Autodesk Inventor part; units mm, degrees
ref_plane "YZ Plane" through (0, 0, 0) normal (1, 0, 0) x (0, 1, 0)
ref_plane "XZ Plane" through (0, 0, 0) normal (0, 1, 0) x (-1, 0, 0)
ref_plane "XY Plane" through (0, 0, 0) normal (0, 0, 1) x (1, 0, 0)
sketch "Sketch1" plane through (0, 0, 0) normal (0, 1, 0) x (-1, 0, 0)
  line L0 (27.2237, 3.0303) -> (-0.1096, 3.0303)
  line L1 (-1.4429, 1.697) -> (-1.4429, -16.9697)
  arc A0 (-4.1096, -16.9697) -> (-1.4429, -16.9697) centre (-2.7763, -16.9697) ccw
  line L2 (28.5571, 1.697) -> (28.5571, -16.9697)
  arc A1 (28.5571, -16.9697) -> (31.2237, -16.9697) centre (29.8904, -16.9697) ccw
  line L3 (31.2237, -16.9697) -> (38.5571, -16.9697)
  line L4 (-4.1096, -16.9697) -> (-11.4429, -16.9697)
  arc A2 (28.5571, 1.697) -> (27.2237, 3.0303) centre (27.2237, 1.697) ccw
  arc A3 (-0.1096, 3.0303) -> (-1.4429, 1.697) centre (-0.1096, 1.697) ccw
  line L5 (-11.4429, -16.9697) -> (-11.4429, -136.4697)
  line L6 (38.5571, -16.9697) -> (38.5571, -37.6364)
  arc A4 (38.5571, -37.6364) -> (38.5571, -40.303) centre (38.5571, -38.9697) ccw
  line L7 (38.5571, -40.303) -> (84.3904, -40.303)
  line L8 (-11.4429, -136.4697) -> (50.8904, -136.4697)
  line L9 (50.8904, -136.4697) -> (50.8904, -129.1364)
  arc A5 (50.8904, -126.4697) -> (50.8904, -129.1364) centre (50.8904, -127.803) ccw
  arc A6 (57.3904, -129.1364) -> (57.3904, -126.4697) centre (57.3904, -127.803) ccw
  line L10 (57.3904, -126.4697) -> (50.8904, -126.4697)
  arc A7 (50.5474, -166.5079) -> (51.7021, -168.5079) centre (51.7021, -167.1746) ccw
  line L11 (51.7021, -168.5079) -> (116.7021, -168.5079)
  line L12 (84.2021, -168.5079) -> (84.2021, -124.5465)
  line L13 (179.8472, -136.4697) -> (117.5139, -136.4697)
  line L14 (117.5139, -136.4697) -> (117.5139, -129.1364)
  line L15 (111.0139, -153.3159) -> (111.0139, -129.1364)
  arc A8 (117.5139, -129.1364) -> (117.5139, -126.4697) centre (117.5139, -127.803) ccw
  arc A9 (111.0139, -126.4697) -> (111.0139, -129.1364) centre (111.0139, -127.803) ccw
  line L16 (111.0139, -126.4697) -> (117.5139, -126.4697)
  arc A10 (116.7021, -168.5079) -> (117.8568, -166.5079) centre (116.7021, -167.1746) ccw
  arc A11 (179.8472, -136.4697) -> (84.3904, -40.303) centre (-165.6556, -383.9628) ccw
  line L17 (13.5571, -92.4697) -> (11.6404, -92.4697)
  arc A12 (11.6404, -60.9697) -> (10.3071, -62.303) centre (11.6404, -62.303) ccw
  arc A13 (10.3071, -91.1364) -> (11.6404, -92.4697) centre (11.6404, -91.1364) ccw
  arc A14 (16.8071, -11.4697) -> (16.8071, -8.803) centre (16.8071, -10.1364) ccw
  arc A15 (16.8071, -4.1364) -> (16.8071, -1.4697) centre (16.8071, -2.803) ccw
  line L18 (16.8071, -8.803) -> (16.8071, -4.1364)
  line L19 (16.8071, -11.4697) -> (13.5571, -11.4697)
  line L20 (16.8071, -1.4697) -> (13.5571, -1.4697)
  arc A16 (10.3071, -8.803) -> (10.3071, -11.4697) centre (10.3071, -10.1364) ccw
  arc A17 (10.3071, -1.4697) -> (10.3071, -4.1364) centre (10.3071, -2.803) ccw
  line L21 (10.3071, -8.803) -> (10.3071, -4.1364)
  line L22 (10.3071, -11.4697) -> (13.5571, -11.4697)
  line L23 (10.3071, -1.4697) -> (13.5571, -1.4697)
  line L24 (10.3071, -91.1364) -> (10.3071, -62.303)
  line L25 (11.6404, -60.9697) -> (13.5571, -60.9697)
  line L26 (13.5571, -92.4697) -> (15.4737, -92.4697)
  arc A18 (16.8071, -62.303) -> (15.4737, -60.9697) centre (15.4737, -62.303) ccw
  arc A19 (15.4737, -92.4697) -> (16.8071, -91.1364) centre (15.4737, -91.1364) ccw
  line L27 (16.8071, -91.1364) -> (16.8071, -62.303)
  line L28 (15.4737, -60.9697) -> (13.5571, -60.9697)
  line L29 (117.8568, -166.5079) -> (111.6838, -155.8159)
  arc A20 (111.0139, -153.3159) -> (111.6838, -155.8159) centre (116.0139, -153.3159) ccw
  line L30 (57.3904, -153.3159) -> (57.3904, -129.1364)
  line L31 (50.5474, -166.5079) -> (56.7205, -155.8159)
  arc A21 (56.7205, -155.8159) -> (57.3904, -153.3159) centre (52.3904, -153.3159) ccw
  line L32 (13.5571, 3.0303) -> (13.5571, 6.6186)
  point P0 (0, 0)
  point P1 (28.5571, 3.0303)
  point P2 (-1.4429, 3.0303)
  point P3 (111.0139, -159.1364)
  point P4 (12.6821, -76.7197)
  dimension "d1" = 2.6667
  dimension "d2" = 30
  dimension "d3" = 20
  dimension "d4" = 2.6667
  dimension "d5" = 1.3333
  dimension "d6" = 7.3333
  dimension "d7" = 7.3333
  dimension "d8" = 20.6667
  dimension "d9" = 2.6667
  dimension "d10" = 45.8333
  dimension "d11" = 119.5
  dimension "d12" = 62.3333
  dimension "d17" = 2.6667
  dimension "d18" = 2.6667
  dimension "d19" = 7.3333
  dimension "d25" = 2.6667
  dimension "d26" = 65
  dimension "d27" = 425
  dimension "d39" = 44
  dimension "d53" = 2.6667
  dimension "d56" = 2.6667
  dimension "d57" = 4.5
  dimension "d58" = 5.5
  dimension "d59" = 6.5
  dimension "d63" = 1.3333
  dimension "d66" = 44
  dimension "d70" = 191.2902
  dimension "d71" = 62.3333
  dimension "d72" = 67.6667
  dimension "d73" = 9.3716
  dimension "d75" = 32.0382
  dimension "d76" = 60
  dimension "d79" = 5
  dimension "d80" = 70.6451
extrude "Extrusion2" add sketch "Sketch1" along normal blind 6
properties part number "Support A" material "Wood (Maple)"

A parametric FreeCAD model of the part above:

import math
import FreeCAD as App
import Part
import Sketcher

V = App.Vector
Q = App.Units.Quantity

doc = App.newDocument("Part")
body = doc.addObject("PartDesign::Body", "Body")

sketch1 = body.newObject("Sketcher::SketchObject", "Sketch")
sketch1.AttachmentSupport = (doc.getObject("XZ_Plane"), [""])
sketch1.MapMode = "FlatFace"
sketch1.addGeometry(Part.ArcOfCircle(Part.Circle(V(-27.2237, 1.697, 0), V(0, 0, 1), 1.3334), math.radians(90), math.radians(180)), False)
sketch1.addGeometry(Part.LineSegment(V(-27.2237, 3.0303, 0), V(0.1096, 3.0303, 0)), False)
sketch1.addGeometry(Part.ArcOfCircle(Part.Circle(V(0.1096, 1.697, 0), V(0, 0, 1), 1.3333), math.radians(0), math.radians(90)), False)
sketch1.addGeometry(Part.LineSegment(V(1.4429, 1.697, 0), V(1.4429, -16.9697, 0)), False)
sketch1.addGeometry(Part.ArcOfCircle(Part.Circle(V(2.7763, -16.9697, 0), V(0, 0, 1), 1.3333), math.radians(180), math.radians(360)), False)
sketch1.addGeometry(Part.LineSegment(V(4.1096, -16.9697, 0), V(11.4429, -16.9697, 0)), False)
sketch1.addGeometry(Part.LineSegment(V(11.4429, -16.9697, 0), V(11.4429, -136.4697, 0)), False)
sketch1.addGeometry(Part.LineSegment(V(11.4429, -136.4697, 0), V(-50.8904, -136.4697, 0)), False)
sketch1.addGeometry(Part.LineSegment(V(-50.8904, -136.4697, 0), V(-50.8904, -129.1364, 0)), False)
sketch1.addGeometry(Part.ArcOfCircle(Part.Circle(V(-50.8904, -127.803, 0), V(0, 0, 1), 1.3333), math.radians(-90), math.radians(90)), False)
sketch1.addGeometry(Part.LineSegment(V(-50.8904, -126.4697, 0), V(-57.3904, -126.4697, 0)), False)
sketch1.addGeometry(Part.ArcOfCircle(Part.Circle(V(-57.3904, -127.803, 0), V(0, 0, 1), 1.3334), math.radians(90), math.radians(270)), False)
sketch1.addGeometry(Part.LineSegment(V(-57.3904, -129.1364, 0), V(-57.3904, -153.3159, 0)), False)
sketch1.addGeometry(Part.ArcOfCircle(Part.Circle(V(-52.3904, -153.3159, 0), V(0, 0, 1), 4.999977), math.radians(180), math.radians(210.000155)), False)
sketch1.addGeometry(Part.LineSegment(V(-56.7205, -155.8159, 0), V(-50.5474, -166.5079, 0)), False)
sketch1.addGeometry(Part.ArcOfCircle(Part.Circle(V(-51.7021, -167.1746, 0), V(0, 0, 1), 1.33335), math.radians(-90), math.radians(30.001252)), False)
sketch1.addGeometry(Part.LineSegment(V(-51.7021, -168.5079, 0), V(-116.7021, -168.5079, 0)), False)
sketch1.addGeometry(Part.ArcOfCircle(Part.Circle(V(-116.7021, -167.1746, 0), V(0, 0, 1), 1.3333), math.radians(149.998748), math.radians(270)), False)
sketch1.addGeometry(Part.LineSegment(V(-117.8568, -166.5079, 0), V(-111.6838, -155.8159, 0)), False)
sketch1.addGeometry(Part.ArcOfCircle(Part.Circle(V(-116.0139, -153.3159, 0), V(0, 0, 1), 5), math.radians(-30.000155), math.radians(0)), False)
sketch1.addGeometry(Part.LineSegment(V(-111.0139, -153.3159, 0), V(-111.0139, -129.1364, 0)), False)
sketch1.addGeometry(Part.ArcOfCircle(Part.Circle(V(-111.0139, -127.803, 0), V(0, 0, 1), 1.3333), math.radians(-90), math.radians(90)), False)
sketch1.addGeometry(Part.LineSegment(V(-111.0139, -126.4697, 0), V(-117.5139, -126.4697, 0)), False)
sketch1.addGeometry(Part.ArcOfCircle(Part.Circle(V(-117.5139, -127.803, 0), V(0, 0, 1), 1.3334), math.radians(90), math.radians(270)), False)
sketch1.addGeometry(Part.LineSegment(V(-117.5139, -129.1364, 0), V(-117.5139, -136.4697, 0)), False)
sketch1.addGeometry(Part.LineSegment(V(-117.5139, -136.4697, 0), V(-179.8472, -136.4697, 0)), False)
sketch1.addGeometry(Part.ArcOfCircle(Part.Circle(V(165.657041, -383.964018, 0), V(0, 0, 1), 425.001904), math.radians(126.039601), math.radians(144.384919)), False)
sketch1.addGeometry(Part.LineSegment(V(-84.3904, -40.303, 0), V(-38.5571, -40.303, 0)), False)
sketch1.addGeometry(Part.ArcOfCircle(Part.Circle(V(-38.5571, -38.9697, 0), V(0, 0, 1), 1.3333), math.radians(-90), math.radians(90)), False)
sketch1.addGeometry(Part.LineSegment(V(-38.5571, -37.6364, 0), V(-38.5571, -16.9697, 0)), False)
sketch1.addGeometry(Part.LineSegment(V(-38.5571, -16.9697, 0), V(-31.2237, -16.9697, 0)), False)
sketch1.addGeometry(Part.ArcOfCircle(Part.Circle(V(-29.8904, -16.9697, 0), V(0, 0, 1), 1.3333), math.radians(180), math.radians(360)), False)
sketch1.addGeometry(Part.LineSegment(V(-28.5571, -16.9697, 0), V(-28.5571, 1.697, 0)), False)
sketch1.addGeometry(Part.LineSegment(V(-15.4737, -92.4697, 0), V(-11.6404, -92.4697, 0)), False)
sketch1.addGeometry(Part.ArcOfCircle(Part.Circle(V(-11.6404, -91.1364, 0), V(0, 0, 1), 1.3333), math.radians(-90), math.radians(0)), False)
sketch1.addGeometry(Part.LineSegment(V(-10.3071, -91.1364, 0), V(-10.3071, -62.303, 0)), False)
sketch1.addGeometry(Part.ArcOfCircle(Part.Circle(V(-11.6404, -62.303, 0), V(0, 0, 1), 1.3333), math.radians(0), math.radians(90)), False)
sketch1.addGeometry(Part.LineSegment(V(-11.6404, -60.9697, 0), V(-15.4737, -60.9697, 0)), False)
sketch1.addGeometry(Part.ArcOfCircle(Part.Circle(V(-15.4737, -62.303, 0), V(0, 0, 1), 1.3334), math.radians(90), math.radians(180)), False)
sketch1.addGeometry(Part.LineSegment(V(-16.8071, -62.303, 0), V(-16.8071, -91.1364, 0)), False)
sketch1.addGeometry(Part.ArcOfCircle(Part.Circle(V(-15.4737, -91.1364, 0), V(0, 0, 1), 1.3333), math.radians(180), math.radians(270)), False)
sketch1.addGeometry(Part.ArcOfCircle(Part.Circle(V(-16.8071, -10.1364, 0), V(0, 0, 1), 1.3333), math.radians(90), math.radians(270)), False)
sketch1.addGeometry(Part.LineSegment(V(-16.8071, -11.4697, 0), V(-10.3071, -11.4697, 0)), False)
sketch1.addGeometry(Part.ArcOfCircle(Part.Circle(V(-10.3071, -10.1364, 0), V(0, 0, 1), 1.3334), math.radians(-90), math.radians(90)), False)
sketch1.addGeometry(Part.LineSegment(V(-10.3071, -8.803, 0), V(-10.3071, -4.1364, 0)), False)
sketch1.addGeometry(Part.ArcOfCircle(Part.Circle(V(-10.3071, -2.803, 0), V(0, 0, 1), 1.3333), math.radians(-90), math.radians(90)), False)
sketch1.addGeometry(Part.LineSegment(V(-10.3071, -1.4697, 0), V(-16.8071, -1.4697, 0)), False)
sketch1.addGeometry(Part.ArcOfCircle(Part.Circle(V(-16.8071, -2.803, 0), V(0, 0, 1), 1.3334), math.radians(90), math.radians(270)), False)
sketch1.addGeometry(Part.LineSegment(V(-16.8071, -4.1364, 0), V(-16.8071, -8.803, 0)), False)
sketch1.addConstraint(Sketcher.Constraint("Tangent", 0, 1, 1, 1))
sketch1.addConstraint(Sketcher.Constraint("Tangent", 1, 2, 2, 2))
sketch1.addConstraint(Sketcher.Constraint("Tangent", 2, 1, 3, 1))
sketch1.addConstraint(Sketcher.Constraint("Tangent", 3, 2, 4, 1))
sketch1.addConstraint(Sketcher.Constraint("Coincident", 4, 2, 5, 1))
sketch1.addConstraint(Sketcher.Constraint("Coincident", 5, 2, 6, 1))
sketch1.addConstraint(Sketcher.Constraint("Coincident", 6, 2, 7, 1))
sketch1.addConstraint(Sketcher.Constraint("Coincident", 7, 2, 8, 1))
sketch1.addConstraint(Sketcher.Constraint("Coincident", 8, 2, 9, 1))
sketch1.addConstraint(Sketcher.Constraint("Tangent", 9, 2, 10, 1))
sketch1.addConstraint(Sketcher.Constraint("Tangent", 10, 2, 11, 1))
sketch1.addConstraint(Sketcher.Constraint("Coincident", 11, 2, 12, 1))
sketch1.addConstraint(Sketcher.Constraint("Tangent", 12, 2, 13, 1))
sketch1.addConstraint(Sketcher.Constraint("Tangent", 13, 2, 14, 1))
sketch1.addConstraint(Sketcher.Constraint("Tangent", 14, 2, 15, 2))
sketch1.addConstraint(Sketcher.Constraint("Tangent", 15, 1, 16, 1))
sketch1.addConstraint(Sketcher.Constraint("Tangent", 16, 2, 17, 2))
sketch1.addConstraint(Sketcher.Constraint("Tangent", 17, 1, 18, 1))
sketch1.addConstraint(Sketcher.Constraint("Tangent", 18, 2, 19, 1))
sketch1.addConstraint(Sketcher.Constraint("Tangent", 19, 2, 20, 1))
sketch1.addConstraint(Sketcher.Constraint("Coincident", 20, 2, 21, 1))
sketch1.addConstraint(Sketcher.Constraint("Tangent", 21, 2, 22, 1))
sketch1.addConstraint(Sketcher.Constraint("Tangent", 22, 2, 23, 1))
sketch1.addConstraint(Sketcher.Constraint("Coincident", 23, 2, 24, 1))
sketch1.addConstraint(Sketcher.Constraint("Coincident", 24, 2, 25, 1))
sketch1.addConstraint(Sketcher.Constraint("Coincident", 25, 2, 26, 2))
sketch1.addConstraint(Sketcher.Constraint("Coincident", 26, 1, 27, 1))
sketch1.addConstraint(Sketcher.Constraint("Tangent", 27, 2, 28, 1))
sketch1.addConstraint(Sketcher.Constraint("Coincident", 28, 2, 29, 1))
sketch1.addConstraint(Sketcher.Constraint("Coincident", 29, 2, 30, 1))
sketch1.addConstraint(Sketcher.Constraint("Coincident", 30, 2, 31, 1))
sketch1.addConstraint(Sketcher.Constraint("Tangent", 31, 2, 32, 1))
sketch1.addConstraint(Sketcher.Constraint("Tangent", 32, 2, 0, 2))
sketch1.addConstraint(Sketcher.Constraint("Tangent", 33, 2, 34, 1))
sketch1.addConstraint(Sketcher.Constraint("Tangent", 34, 2, 35, 1))
sketch1.addConstraint(Sketcher.Constraint("Tangent", 35, 2, 36, 1))
sketch1.addConstraint(Sketcher.Constraint("Tangent", 36, 2, 37, 1))
sketch1.addConstraint(Sketcher.Constraint("Tangent", 37, 2, 38, 1))
sketch1.addConstraint(Sketcher.Constraint("Tangent", 38, 2, 39, 1))
sketch1.addConstraint(Sketcher.Constraint("Tangent", 39, 2, 40, 1))
sketch1.addConstraint(Sketcher.Constraint("Tangent", 40, 2, 33, 1))
sketch1.addConstraint(Sketcher.Constraint("Tangent", 41, 2, 42, 1))
sketch1.addConstraint(Sketcher.Constraint("Tangent", 42, 2, 43, 1))
sketch1.addConstraint(Sketcher.Constraint("Coincident", 43, 2, 44, 1))
sketch1.addConstraint(Sketcher.Constraint("Coincident", 44, 2, 45, 1))
sketch1.addConstraint(Sketcher.Constraint("Tangent", 45, 2, 46, 1))
sketch1.addConstraint(Sketcher.Constraint("Tangent", 46, 2, 47, 1))
sketch1.addConstraint(Sketcher.Constraint("Coincident", 47, 2, 48, 1))
sketch1.addConstraint(Sketcher.Constraint("Coincident", 48, 2, 41, 1))
sketch1.addConstraint(Sketcher.Constraint("Horizontal", 1))
sketch1.addConstraint(Sketcher.Constraint("Vertical", 3))
sketch1.addConstraint(Sketcher.Constraint("Horizontal", 5))
sketch1.addConstraint(Sketcher.Constraint("Vertical", 6))
sketch1.addConstraint(Sketcher.Constraint("Horizontal", 7))
sketch1.addConstraint(Sketcher.Constraint("Vertical", 8))
sketch1.addConstraint(Sketcher.Constraint("Horizontal", 10))
sketch1.addConstraint(Sketcher.Constraint("Vertical", 12))
sketch1.addConstraint(Sketcher.Constraint("Horizontal", 16))
sketch1.addConstraint(Sketcher.Constraint("Vertical", 20))
sketch1.addConstraint(Sketcher.Constraint("Horizontal", 22))
sketch1.addConstraint(Sketcher.Constraint("Vertical", 24))
sketch1.addConstraint(Sketcher.Constraint("Horizontal", 25))
sketch1.addConstraint(Sketcher.Constraint("Horizontal", 27))
sketch1.addConstraint(Sketcher.Constraint("Vertical", 29))
sketch1.addConstraint(Sketcher.Constraint("Horizontal", 30))
sketch1.addConstraint(Sketcher.Constraint("Vertical", 32))
sketch1.addConstraint(Sketcher.Constraint("Horizontal", 33))
sketch1.addConstraint(Sketcher.Constraint("Vertical", 35))
sketch1.addConstraint(Sketcher.Constraint("Horizontal", 37))
sketch1.addConstraint(Sketcher.Constraint("Vertical", 39))
sketch1.addConstraint(Sketcher.Constraint("Horizontal", 42))
sketch1.addConstraint(Sketcher.Constraint("Vertical", 44))
sketch1.addConstraint(Sketcher.Constraint("Horizontal", 46))
sketch1.addConstraint(Sketcher.Constraint("Vertical", 48))
sketch1.addConstraint(Sketcher.Constraint("Equal", 0, 2))
sketch1.addConstraint(Sketcher.Constraint("Equal", 2, 4))
sketch1.addConstraint(Sketcher.Constraint("Equal", 4, 9))
sketch1.addConstraint(Sketcher.Constraint("Equal", 9, 11))
sketch1.addConstraint(Sketcher.Constraint("Equal", 11, 15))
sketch1.addConstraint(Sketcher.Constraint("Equal", 15, 17))
sketch1.addConstraint(Sketcher.Constraint("Equal", 13, 19))
sketch1.addConstraint(Sketcher.Constraint("Equal", 17, 21))
sketch1.addConstraint(Sketcher.Constraint("Equal", 21, 23))
sketch1.addConstraint(Sketcher.Constraint("Equal", 23, 28))
sketch1.addConstraint(Sketcher.Constraint("Equal", 28, 31))
sketch1.addConstraint(Sketcher.Constraint("Equal", 31, 34))
sketch1.addConstraint(Sketcher.Constraint("Equal", 34, 36))
sketch1.addConstraint(Sketcher.Constraint("Equal", 36, 38))
sketch1.addConstraint(Sketcher.Constraint("Equal", 38, 40))
sketch1.addConstraint(Sketcher.Constraint("Equal", 40, 41))
sketch1.addConstraint(Sketcher.Constraint("Equal", 41, 43))
sketch1.addConstraint(Sketcher.Constraint("Equal", 43, 45))
sketch1.addConstraint(Sketcher.Constraint("Equal", 45, 47))
sketch1.addConstraint(Sketcher.Constraint("Horizontal", 13, 3, 19, 3))
sketch1.addConstraint(Sketcher.Constraint("Horizontal", 11, 3, 21, 3))
sketch1.addConstraint(Sketcher.Constraint("Horizontal", 4, 3, 31, 3))
sketch1.addConstraint(Sketcher.Constraint("Horizontal", 3, 2, 4, 2))
sketch1.addConstraint(Sketcher.Constraint("Horizontal", 14, 2, 17, 1))
sketch1.addConstraint(Sketcher.Constraint("Horizontal", 7, 2, 24, 2))
sketch1.addConstraint(Sketcher.Constraint("Horizontal", 5, 2, 29, 2))
sketch1.addConstraint(Sketcher.Constraint("Vertical", 43, 3, 45, 3))
sketch1.addConstraint(Sketcher.Constraint("Vertical", 41, 3, 47, 3))
sketch1.addConstraint(Sketcher.Constraint("Vertical", 9, 3, 7, 2))
sketch1.addConstraint(Sketcher.Constraint("Vertical", 10, 2, 11, 2))
sketch1.addConstraint(Sketcher.Constraint("Vertical", 21, 3, 19, 2))
sketch1.addConstraint(Sketcher.Constraint("Vertical", 22, 2, 23, 2))
sketch1.addConstraint(Sketcher.Constraint("Vertical", 27, 2, 28, 2))
sketch1.addConstraint(Sketcher.Constraint("Vertical", 45, 3, 34, 2))
sketch1.addConstraint(Sketcher.Constraint("Vertical", 47, 3, 38, 2))
sketch1.addConstraint(Sketcher.Constraint("Vertical", 42, 2, 43, 2))
sketch1.addConstraint(Sketcher.Constraint("Vertical", 46, 2, 47, 2))
sketch1.addConstraint(Sketcher.Constraint("Equal", 10, 22))
sketch1.addConstraint(Sketcher.Constraint("Equal", 7, 25))
sketch1.addConstraint(Sketcher.Constraint("Equal", 5, 30))
sketch1.addConstraint(Sketcher.Constraint("Equal", 22, 42))
sketch1.addConstraint(Sketcher.Constraint("Equal", 30, 8))
sketch1.addConstraint(Sketcher.Constraint("Radius", 13, Q("5 mm")))
sketch1.addConstraint(Sketcher.Constraint("DistanceX", 16, 2, 16, 1, Q("65 mm")))
sketch1.addConstraint(Sketcher.Constraint("Angle", 14, Q("-59.9997 deg")))
sketch1.addConstraint(Sketcher.Constraint("DistanceX", 10, 2, 10, 1, Q("6.5 mm")))
sketch1.addConstraint(Sketcher.Constraint("DistanceY", 6, 2, 6, 1, Q("119.5 mm")))
sketch1.addConstraint(Sketcher.Constraint("Radius", 0, Q("1.3334 mm")))
sketch1.addConstraint(Sketcher.Constraint("DistanceX", 5, 1, 5, 2, Q("7.3333 mm")))
sketch1.addConstraint(Sketcher.Constraint("DistanceX", 7, 2, 7, 1, Q("62.3333 mm")))
sketch1.addConstraint(Sketcher.Constraint("DistanceX", 27, 1, 27, 2, Q("45.8333 mm")))
sketch1.addConstraint(Sketcher.Constraint("DistanceY", 29, 1, 29, 2, Q("20.6667 mm")))
sketch1.addConstraint(Sketcher.Constraint("Radius", 26, Q("425.002 mm")))
sketch1.addConstraint(Sketcher.Constraint("Distance", 14, Q("12.346 mm")))
sketch1.addConstraint(Sketcher.Constraint("DistanceX", 1, 1, 1, 2, Q("27.3333 mm")))
sketch1.addConstraint(Sketcher.Constraint("DistanceY", 3, 2, 3, 1, Q("18.6667 mm")))
sketch1.addConstraint(Sketcher.Constraint("DistanceY", 12, 2, 12, 1, Q("24.1795 mm")))
sketch1.addConstraint(Sketcher.Constraint("DistanceY", 35, 1, 35, 2, Q("28.8334 mm")))
sketch1.addConstraint(Sketcher.Constraint("DistanceY", 44, 1, 44, 2, Q("4.6666 mm")))
sketch1.addConstraint(Sketcher.Constraint("DistanceY", -1, 1, 0, 3, Q("1.697 mm")))
sketch1.addConstraint(Sketcher.Constraint("DistanceX", 15, 3, -1, 1, Q("51.702 mm")))
sketch1.addConstraint(Sketcher.Constraint("DistanceY", 36, 3, -1, 1, Q("62.303 mm")))
sketch1.addConstraint(Sketcher.Constraint("DistanceX", 41, 3, -1, 1, Q("16.807 mm")))
sketch1.addConstraint(Sketcher.Constraint("DistanceY", 45, 3, -1, 1, Q("2.803 mm")))
pad1 = body.newObject("PartDesign::Pad", "Pad")
pad1.Profile = sketch1
pad1.Length = 6
pad1.Reversed = True

doc.recompute()
